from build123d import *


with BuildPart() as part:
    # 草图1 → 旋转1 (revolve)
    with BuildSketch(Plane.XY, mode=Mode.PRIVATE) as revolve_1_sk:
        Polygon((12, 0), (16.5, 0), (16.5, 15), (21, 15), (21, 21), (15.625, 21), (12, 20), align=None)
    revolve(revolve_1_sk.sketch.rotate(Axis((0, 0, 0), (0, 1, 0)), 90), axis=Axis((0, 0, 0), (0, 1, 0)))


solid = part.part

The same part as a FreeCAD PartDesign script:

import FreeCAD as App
import Part
import Sketcher
from FreeCAD import Vector


def add_polygon(sketch, points):
    """Adds a closed chain of lines whose ends are joined by coincident constraints."""
    first, n = sketch.GeometryCount, len(points)
    for a, b in zip(points, points[1:] + points[:1]):
        sketch.addGeometry(Part.LineSegment(App.Vector(*a, 0), App.Vector(*b, 0)), False)
    for i in range(n):
        sketch.addConstraint(Sketcher.Constraint("Coincident", first + i, 2, first + (i + 1) % n, 1))

doc = App.newDocument("Part")
body = doc.addObject("PartDesign::Body", "Body")

# Sketch on XY plane
sketch1 = body.newObject("Sketcher::SketchObject", "Sketch")
sketch1.AttachmentSupport = (doc.getObject("XY_Plane"), [""])
sketch1.MapMode = "FlatFace"
add_polygon(sketch1, [(12, 0), (16.5, 0), (16.5, 15), (21, 15), (21, 21), (15.6, 21), (12, 20)])  # lines 0-6
sketch1.addConstraint(Sketcher.Constraint("Horizontal", 0))
sketch1.addConstraint(Sketcher.Constraint("Vertical", 1))
sketch1.addConstraint(Sketcher.Constraint("Horizontal", 2))
sketch1.addConstraint(Sketcher.Constraint("Vertical", 3))
sketch1.addConstraint(Sketcher.Constraint("Horizontal", 4))
sketch1.addConstraint(Sketcher.Constraint("Vertical", 6))
sketch1.addConstraint(Sketcher.Constraint("PointOnObject", 0, 2, -1))
sketch1.addConstraint(Sketcher.Constraint("Equal", 0, 2))
sketch1.addConstraint(Sketcher.Constraint("DistanceY", 1, 1, 1, 2, 15.0))
sketch1.addConstraint(Sketcher.Constraint("DistanceY", 3, 1, 3, 2, 6.0))
sketch1.addConstraint(Sketcher.Constraint("DistanceY", 6, 2, 6, 1, 20.0))
sketch1.addConstraint(Sketcher.Constraint("DistanceX", 0, 1, 0, 2, 4.5))
sketch1.addConstraint(Sketcher.Constraint("DistanceX", -1, 1, 2, 2, 21.0))
sketch1.addConstraint(Sketcher.Constraint("DistanceX", 4, 2, 4, 1, 5.375))
revolution = body.newObject("PartDesign::Revolution", "Revolution")
revolution.Profile = sketch1
revolution.ReferenceAxis = (sketch1, ["V_Axis"])
revolution.Angle = 360

doc.recompute()
